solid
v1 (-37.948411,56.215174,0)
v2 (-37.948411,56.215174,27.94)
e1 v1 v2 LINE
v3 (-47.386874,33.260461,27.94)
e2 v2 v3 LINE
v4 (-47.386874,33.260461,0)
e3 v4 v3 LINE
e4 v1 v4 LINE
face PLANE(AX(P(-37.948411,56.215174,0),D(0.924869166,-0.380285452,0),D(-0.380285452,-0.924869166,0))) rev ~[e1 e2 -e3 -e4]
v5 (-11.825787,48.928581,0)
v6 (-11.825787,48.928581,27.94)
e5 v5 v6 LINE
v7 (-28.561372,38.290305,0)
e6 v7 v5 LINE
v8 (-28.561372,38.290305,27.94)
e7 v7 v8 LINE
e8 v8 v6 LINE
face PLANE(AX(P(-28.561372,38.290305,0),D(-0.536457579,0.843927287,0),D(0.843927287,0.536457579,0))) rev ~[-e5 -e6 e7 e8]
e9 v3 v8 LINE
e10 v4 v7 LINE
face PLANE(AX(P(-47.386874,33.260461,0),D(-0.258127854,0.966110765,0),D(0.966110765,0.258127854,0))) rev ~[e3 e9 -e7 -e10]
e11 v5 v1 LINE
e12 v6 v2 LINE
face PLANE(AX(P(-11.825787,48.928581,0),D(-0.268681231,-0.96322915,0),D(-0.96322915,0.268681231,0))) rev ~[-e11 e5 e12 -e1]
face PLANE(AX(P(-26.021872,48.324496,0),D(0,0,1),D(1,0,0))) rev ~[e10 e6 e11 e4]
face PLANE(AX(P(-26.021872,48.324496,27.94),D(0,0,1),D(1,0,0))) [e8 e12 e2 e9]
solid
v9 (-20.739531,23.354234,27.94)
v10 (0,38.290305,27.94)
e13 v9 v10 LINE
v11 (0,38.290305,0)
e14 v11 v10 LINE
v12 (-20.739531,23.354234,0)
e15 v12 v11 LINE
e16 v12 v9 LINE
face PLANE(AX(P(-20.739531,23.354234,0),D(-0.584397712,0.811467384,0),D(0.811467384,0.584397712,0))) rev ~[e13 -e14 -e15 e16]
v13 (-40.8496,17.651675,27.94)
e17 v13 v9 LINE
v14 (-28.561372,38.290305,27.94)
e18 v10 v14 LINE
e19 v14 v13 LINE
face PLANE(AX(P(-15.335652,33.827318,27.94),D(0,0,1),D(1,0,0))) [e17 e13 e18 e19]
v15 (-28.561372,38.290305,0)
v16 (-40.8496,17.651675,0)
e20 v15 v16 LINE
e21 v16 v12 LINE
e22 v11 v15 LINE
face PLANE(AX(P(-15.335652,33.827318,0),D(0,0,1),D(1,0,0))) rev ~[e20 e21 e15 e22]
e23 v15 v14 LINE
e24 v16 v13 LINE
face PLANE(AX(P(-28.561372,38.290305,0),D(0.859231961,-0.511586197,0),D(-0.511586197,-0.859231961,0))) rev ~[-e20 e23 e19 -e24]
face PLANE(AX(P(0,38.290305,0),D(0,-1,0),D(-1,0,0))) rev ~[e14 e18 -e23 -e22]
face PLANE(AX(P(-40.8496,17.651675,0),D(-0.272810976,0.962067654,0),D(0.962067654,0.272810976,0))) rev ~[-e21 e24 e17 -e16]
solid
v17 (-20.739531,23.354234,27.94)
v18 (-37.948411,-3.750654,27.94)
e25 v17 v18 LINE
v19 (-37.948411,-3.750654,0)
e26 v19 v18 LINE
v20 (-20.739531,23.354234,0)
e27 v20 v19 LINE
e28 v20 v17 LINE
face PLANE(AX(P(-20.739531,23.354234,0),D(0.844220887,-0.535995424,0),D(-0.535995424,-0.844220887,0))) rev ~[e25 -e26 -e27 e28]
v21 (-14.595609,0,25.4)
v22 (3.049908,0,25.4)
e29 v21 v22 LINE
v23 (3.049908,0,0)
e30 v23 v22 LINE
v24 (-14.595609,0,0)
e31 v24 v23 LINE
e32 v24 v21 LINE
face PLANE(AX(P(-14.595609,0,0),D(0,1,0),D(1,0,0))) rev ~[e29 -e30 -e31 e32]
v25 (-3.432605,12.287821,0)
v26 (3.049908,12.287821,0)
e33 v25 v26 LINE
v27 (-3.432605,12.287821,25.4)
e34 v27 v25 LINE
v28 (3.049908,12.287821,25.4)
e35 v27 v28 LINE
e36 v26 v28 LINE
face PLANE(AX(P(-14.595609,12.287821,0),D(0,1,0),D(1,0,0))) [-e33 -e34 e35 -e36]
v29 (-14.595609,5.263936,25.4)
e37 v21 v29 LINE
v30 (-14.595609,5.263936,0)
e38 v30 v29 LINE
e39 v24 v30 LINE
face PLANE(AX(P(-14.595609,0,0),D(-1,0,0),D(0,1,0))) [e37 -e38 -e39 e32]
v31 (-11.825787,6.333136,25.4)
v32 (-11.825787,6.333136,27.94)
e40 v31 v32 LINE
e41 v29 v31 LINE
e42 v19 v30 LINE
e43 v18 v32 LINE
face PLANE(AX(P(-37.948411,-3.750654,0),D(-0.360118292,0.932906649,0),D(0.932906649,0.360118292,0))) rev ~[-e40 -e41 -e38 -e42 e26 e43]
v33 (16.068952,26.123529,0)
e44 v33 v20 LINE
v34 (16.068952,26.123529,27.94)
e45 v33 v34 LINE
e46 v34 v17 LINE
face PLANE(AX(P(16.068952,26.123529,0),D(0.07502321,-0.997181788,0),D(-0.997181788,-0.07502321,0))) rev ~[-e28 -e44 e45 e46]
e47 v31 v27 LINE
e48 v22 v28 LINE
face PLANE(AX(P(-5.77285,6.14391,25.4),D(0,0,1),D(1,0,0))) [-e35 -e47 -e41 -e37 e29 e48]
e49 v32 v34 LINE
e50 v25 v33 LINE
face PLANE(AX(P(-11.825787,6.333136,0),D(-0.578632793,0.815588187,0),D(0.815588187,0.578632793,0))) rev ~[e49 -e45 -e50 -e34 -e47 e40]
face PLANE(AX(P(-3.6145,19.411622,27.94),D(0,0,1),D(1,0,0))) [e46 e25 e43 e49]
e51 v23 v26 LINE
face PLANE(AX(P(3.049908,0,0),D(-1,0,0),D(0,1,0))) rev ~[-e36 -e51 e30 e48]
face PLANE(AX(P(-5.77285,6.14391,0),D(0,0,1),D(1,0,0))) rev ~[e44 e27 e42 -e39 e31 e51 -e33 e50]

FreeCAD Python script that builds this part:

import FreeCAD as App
import Part
import Sketcher

V = App.Vector


def add_polygon(sketch, points):
    """Adds a closed chain of lines whose ends are joined by coincident constraints."""
    first, n = sketch.GeometryCount, len(points)
    for a, b in zip(points, points[1:] + points[:1]):
        sketch.addGeometry(Part.LineSegment(App.Vector(*a, 0), App.Vector(*b, 0)), False)
    for i in range(n):
        sketch.addConstraint(Sketcher.Constraint("Coincident", first + i, 2, first + (i + 1) % n, 1))

doc = App.newDocument("Part")
params = doc.addObject("Spreadsheet::Sheet", "Params")
for row, (alias, value) in enumerate([
    ("pad1_length", "1.1 in"),
    ("pad2_length", "1 in"),
], start=1):
    params.set(f"A{row}", alias)
    params.set(f"B{row}", "=" + value)
    params.setAlias(f"B{row}", alias)

body = doc.addObject("PartDesign::Body", "Body")
body.AllowCompound = True

sketch1 = body.newObject("Sketcher::SketchObject", "Sketch")
sketch1.AttachmentSupport = (doc.getObject("XY_Plane"), [""])
sketch1.MapMode = "FlatFace"
add_polygon(sketch1, [(-12, 49), (-38, 56), (-47, 33), (-29, 38)])
add_polygon(sketch1, [(16, 26), (-21, 23), (-38, -4), (-12, 6)])
add_polygon(sketch1, [(0, 38), (-29, 38), (-41, 18), (-21, 23)])
sketch1.addConstraint(Sketcher.Constraint("Horizontal", 8))
sketch1.addConstraint(Sketcher.Constraint("Coincident", 8, 2, 2, 2))
sketch1.addConstraint(Sketcher.Constraint("Coincident", 10, 2, 4, 2))
sketch1.addConstraint(Sketcher.Constraint("PointOnObject", 11, 2, -2))
sketch1.addConstraint(Sketcher.Constraint("Vertical", 0, 2, 5, 2))
sketch1.addConstraint(Sketcher.Constraint("Vertical", 3, 2, 6, 2))
sketch1.addConstraint(Sketcher.Constraint("Distance", 3, 19.830601))
sketch1.addConstraint(Sketcher.Constraint("DistanceX", 8, 2, 8, 1, 28.561372))
sketch1.addConstraint(Sketcher.Constraint("DistanceX", 9, 2, -1, 1, 40.8496))
sketch1.addConstraint(Sketcher.Constraint("DistanceX", 1, 2, 2, 2, 18.825502))
sketch1.addConstraint(Sketcher.Constraint("DistanceY", 6, 2, 4, 2, 17.021098))
sketch1.addConstraint(Sketcher.Constraint("Distance", 4, 36.91251))
sketch1.addConstraint(Sketcher.Constraint("Distance", 7, 34.20199))
sketch1.addConstraint(Sketcher.Constraint("Distance", 9, 24.019858))
sketch1.addConstraint(Sketcher.Constraint("Distance", 11, 25.558059))
sketch1.addConstraint(Sketcher.Constraint("DistanceX", 0, 2, -1, 1, 37.948411))
sketch1.addConstraint(Sketcher.Constraint("DistanceY", -1, 1, 1, 2, 33.260461))
sketch1.addConstraint(Sketcher.Constraint("DistanceY", -1, 1, 3, 2, 48.928581))
sketch1.addConstraint(Sketcher.Constraint("DistanceX", 4, 2, -1, 1, 20.739531))
sketch1.addConstraint(Sketcher.Constraint("DistanceX", -1, 1, 7, 2, 16.068952))
sketch1.addConstraint(Sketcher.Constraint("DistanceY", 2, 2, 0, 2, 17.924869))
sketch1.addConstraint(Sketcher.Constraint("DistanceY", 5, 2, 4, 2, 27.104888))
pad1 = body.newObject("PartDesign::Pad", "Pad")
pad1.Profile = sketch1
pad1.setExpression("Length", "Params.pad1_length")

sketch2 = body.newObject("Sketcher::SketchObject", "Sketch001")
sketch2.AttachmentSupport = (doc.getObject("XY_Plane"), [""])
sketch2.MapMode = "FlatFace"
add_polygon(sketch2, [(-15, 12), (-15, 0), (3, 0), (3, 12)])
sketch2.addConstraint(Sketcher.Constraint("Vertical", 0))
sketch2.addConstraint(Sketcher.Constraint("Horizontal", 1))
sketch2.addConstraint(Sketcher.Constraint("Vertical", 2))
sketch2.addConstraint(Sketcher.Constraint("Horizontal", 3))
sketch2.addConstraint(Sketcher.Constraint("PointOnObject", 0, 2, -1))
sketch2.addConstraint(Sketcher.Constraint("DistanceY", 0, 2, 0, 1, 12.287821))
sketch2.addConstraint(Sketcher.Constraint("DistanceX", 1, 1, 1, 2, 17.645517))
sketch2.addConstraint(Sketcher.Constraint("DistanceX", 0, 2, -1, 1, 14.595609))
pad2 = body.newObject("PartDesign::Pad", "Pad001")
pad2.Profile = sketch2
pad2.setExpression("Length", "Params.pad2_length")

doc.recompute()
